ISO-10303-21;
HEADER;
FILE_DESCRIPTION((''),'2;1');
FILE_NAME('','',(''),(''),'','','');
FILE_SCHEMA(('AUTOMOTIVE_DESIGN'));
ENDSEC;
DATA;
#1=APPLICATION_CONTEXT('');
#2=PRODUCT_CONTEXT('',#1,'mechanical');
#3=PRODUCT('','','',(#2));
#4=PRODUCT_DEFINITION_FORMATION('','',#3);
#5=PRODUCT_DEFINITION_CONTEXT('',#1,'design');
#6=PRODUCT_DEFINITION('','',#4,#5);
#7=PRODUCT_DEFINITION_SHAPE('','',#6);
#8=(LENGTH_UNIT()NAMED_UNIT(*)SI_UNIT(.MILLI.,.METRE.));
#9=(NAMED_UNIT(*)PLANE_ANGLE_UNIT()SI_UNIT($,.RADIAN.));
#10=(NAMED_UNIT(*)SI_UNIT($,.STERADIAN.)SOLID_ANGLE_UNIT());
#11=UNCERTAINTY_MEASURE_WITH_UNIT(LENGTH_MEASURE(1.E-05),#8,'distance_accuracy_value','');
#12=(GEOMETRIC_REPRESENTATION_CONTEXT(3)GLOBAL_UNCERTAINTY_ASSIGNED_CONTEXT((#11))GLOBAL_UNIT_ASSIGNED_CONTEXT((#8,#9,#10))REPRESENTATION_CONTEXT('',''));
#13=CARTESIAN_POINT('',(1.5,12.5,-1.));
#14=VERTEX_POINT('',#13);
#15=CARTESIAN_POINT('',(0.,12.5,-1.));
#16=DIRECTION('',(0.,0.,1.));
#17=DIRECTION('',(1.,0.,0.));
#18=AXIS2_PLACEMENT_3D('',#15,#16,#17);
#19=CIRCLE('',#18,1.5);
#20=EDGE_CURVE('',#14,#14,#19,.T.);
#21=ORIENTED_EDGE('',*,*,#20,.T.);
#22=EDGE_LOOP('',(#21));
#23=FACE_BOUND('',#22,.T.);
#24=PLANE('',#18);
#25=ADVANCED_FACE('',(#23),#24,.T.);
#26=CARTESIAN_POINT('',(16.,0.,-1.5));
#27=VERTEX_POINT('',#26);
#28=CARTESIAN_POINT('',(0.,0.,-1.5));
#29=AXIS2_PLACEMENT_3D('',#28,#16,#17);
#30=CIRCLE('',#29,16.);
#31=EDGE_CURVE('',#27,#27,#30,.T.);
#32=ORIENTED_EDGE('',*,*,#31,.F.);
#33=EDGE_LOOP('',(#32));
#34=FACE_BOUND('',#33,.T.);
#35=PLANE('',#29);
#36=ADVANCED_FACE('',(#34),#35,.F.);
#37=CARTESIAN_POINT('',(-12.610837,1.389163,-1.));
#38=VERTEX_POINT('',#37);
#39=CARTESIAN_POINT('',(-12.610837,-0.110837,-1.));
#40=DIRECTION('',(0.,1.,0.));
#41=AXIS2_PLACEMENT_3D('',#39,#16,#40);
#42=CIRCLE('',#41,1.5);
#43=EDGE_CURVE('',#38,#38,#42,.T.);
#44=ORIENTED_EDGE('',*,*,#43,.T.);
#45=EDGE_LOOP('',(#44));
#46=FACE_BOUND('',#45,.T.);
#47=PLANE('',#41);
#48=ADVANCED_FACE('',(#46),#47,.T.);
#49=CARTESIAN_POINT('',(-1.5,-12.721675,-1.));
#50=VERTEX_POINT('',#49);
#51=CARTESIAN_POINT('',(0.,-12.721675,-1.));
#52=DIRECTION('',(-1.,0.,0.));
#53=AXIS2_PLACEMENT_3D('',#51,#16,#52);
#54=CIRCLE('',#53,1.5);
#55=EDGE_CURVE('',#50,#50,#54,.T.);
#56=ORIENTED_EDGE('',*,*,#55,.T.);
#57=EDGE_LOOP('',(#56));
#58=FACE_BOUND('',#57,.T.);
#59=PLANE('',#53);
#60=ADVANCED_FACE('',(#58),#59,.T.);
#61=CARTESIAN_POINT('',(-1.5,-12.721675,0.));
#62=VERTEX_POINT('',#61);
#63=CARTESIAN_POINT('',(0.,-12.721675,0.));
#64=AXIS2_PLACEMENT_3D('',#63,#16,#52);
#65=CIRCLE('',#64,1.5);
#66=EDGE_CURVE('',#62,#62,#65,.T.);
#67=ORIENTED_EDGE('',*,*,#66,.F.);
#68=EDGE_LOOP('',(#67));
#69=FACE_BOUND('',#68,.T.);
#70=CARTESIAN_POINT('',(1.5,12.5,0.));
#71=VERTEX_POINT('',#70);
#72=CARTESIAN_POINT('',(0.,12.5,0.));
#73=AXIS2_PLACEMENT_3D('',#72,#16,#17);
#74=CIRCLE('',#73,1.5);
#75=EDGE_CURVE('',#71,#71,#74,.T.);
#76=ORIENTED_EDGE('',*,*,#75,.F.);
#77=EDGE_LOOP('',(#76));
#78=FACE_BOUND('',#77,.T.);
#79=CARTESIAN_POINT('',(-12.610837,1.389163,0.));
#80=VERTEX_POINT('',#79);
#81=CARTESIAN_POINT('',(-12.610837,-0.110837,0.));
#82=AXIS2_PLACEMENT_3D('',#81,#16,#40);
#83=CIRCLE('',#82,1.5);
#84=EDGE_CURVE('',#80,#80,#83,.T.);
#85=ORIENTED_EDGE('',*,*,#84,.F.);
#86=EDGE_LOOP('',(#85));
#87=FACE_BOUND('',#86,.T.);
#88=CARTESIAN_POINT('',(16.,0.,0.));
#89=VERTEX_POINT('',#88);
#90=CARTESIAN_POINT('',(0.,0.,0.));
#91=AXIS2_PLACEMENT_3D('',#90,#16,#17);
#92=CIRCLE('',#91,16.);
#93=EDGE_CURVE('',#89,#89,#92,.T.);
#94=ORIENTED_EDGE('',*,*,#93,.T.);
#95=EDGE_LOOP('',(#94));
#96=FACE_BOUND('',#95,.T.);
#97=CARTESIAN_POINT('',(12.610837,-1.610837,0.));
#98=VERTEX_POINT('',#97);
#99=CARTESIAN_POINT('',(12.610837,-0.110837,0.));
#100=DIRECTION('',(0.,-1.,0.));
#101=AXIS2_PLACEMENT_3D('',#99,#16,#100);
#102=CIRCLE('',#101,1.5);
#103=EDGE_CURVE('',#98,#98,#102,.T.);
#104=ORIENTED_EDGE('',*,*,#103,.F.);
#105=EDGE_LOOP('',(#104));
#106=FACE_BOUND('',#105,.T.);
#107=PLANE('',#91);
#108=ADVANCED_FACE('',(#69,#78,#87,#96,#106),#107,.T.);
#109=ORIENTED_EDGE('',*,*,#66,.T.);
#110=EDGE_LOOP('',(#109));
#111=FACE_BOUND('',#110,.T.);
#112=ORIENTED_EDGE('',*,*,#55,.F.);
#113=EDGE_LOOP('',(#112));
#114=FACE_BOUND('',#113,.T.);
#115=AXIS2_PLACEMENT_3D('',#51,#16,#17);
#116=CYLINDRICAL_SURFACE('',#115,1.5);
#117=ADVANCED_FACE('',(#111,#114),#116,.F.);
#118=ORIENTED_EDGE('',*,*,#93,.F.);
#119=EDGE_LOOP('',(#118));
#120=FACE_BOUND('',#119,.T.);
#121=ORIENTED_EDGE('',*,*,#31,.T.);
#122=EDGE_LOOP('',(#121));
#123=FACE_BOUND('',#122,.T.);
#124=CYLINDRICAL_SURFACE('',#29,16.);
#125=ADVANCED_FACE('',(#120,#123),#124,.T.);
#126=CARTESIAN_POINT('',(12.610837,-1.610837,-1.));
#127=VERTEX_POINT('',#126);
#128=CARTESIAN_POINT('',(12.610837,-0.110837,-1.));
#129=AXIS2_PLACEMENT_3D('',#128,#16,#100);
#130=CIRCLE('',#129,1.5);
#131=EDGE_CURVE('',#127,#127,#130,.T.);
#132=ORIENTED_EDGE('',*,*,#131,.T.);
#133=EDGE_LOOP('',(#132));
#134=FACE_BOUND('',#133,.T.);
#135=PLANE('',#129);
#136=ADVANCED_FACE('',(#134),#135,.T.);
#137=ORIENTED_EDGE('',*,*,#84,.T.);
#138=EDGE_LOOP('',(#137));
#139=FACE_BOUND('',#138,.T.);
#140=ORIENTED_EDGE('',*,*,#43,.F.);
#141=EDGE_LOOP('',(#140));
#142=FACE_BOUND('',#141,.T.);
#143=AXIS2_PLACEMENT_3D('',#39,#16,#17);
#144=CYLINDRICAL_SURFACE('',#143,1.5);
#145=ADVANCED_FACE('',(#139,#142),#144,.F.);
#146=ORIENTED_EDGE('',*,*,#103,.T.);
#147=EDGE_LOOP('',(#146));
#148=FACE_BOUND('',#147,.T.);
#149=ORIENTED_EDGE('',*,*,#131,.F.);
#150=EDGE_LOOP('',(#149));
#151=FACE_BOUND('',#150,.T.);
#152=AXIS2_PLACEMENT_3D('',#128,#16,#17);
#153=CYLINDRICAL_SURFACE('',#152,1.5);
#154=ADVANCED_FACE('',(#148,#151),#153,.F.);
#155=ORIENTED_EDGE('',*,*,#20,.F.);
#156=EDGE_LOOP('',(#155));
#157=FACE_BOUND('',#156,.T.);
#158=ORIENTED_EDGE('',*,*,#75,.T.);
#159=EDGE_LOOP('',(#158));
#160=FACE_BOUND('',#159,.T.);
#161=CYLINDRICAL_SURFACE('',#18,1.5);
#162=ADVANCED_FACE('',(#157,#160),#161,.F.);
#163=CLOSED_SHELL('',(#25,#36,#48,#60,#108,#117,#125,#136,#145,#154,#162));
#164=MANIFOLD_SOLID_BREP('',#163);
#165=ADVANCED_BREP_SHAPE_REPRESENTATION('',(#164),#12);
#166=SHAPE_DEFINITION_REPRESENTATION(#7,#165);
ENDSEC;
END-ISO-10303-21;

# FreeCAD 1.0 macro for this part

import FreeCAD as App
import Part
import Sketcher
Q = App.Units.Quantity

doc = App.newDocument("Part")
params = doc.addObject("Spreadsheet::Sheet", "Params")
for row, (alias, value) in enumerate([
    ("sketch1_diameter", "32 mm"),
    ("pad1_length", "1.5 mm"),
    ("sketch2_diameter", "3 mm"),
    ("pocket1_length", "1 mm"),
], start=1):
    params.set(f"A{row}", alias)
    params.set(f"B{row}", "=" + value)
    params.setAlias(f"B{row}", alias)

body = doc.addObject("PartDesign::Body", "Body")

sketch1 = body.newObject("Sketcher::SketchObject", "Sketch")
sketch1.AttachmentSupport = (doc.getObject("XY_Plane"), [""])
sketch1.MapMode = "FlatFace"
sketch1.addGeometry(Part.Circle(App.Vector(0, 0, 0), App.Vector(0, 0, 1), 16), False)
sketch1.addConstraint([
    Sketcher.Constraint("Coincident", 0, 3, -1, 1),
    Sketcher.Constraint("Diameter", 0, Q("32 mm")),
])
sketch1.setExpression("Constraints[1]", "Params.sketch1_diameter")
pad1 = body.newObject("PartDesign::Pad", "Pad")
pad1.Profile = sketch1
pad1.setExpression("Length", "Params.pad1_length")
pad1.Reversed = True

sketch2 = body.newObject("Sketcher::SketchObject", "Sketch001")
sketch2.AttachmentSupport = (doc.getObject("XY_Plane"), [""])
sketch2.MapMode = "FlatFace"
sketch2.addGeometry(Part.Circle(App.Vector(0, 12.5, 0), App.Vector(0, 0, 1), 1.5), False)
sketch2.addConstraint([
    Sketcher.Constraint("PointOnObject", 0, 3, -2),
    Sketcher.Constraint("Diameter", 0, Q("3 mm")),
    Sketcher.Constraint("DistanceY", -1, 1, 0, 3, Q("12.5 mm")),
])
sketch2.setExpression("Constraints[1]", "Params.sketch2_diameter")
pocket1 = body.newObject("PartDesign::Pocket", "Pocket")
pocket1.Profile = sketch2
pocket1.setExpression("Length", "Params.pocket1_length")
doc.recompute()

datumline = body.newObject("PartDesign::Line", "DatumLine")
datumline.Placement = App.Placement(App.Vector(0, -0.110837, 0), App.Rotation(App.Vector(0, 0, 1), App.Vector(0, 0, 1)))
polarpattern = body.newObject("PartDesign::PolarPattern", "PolarPattern")
polarpattern.Originals = [pocket1]
polarpattern.Axis = (datumline, [""])
polarpattern.Angle = 360
polarpattern.Occurrences = 4
body.Tip = polarpattern

doc.recompute()
